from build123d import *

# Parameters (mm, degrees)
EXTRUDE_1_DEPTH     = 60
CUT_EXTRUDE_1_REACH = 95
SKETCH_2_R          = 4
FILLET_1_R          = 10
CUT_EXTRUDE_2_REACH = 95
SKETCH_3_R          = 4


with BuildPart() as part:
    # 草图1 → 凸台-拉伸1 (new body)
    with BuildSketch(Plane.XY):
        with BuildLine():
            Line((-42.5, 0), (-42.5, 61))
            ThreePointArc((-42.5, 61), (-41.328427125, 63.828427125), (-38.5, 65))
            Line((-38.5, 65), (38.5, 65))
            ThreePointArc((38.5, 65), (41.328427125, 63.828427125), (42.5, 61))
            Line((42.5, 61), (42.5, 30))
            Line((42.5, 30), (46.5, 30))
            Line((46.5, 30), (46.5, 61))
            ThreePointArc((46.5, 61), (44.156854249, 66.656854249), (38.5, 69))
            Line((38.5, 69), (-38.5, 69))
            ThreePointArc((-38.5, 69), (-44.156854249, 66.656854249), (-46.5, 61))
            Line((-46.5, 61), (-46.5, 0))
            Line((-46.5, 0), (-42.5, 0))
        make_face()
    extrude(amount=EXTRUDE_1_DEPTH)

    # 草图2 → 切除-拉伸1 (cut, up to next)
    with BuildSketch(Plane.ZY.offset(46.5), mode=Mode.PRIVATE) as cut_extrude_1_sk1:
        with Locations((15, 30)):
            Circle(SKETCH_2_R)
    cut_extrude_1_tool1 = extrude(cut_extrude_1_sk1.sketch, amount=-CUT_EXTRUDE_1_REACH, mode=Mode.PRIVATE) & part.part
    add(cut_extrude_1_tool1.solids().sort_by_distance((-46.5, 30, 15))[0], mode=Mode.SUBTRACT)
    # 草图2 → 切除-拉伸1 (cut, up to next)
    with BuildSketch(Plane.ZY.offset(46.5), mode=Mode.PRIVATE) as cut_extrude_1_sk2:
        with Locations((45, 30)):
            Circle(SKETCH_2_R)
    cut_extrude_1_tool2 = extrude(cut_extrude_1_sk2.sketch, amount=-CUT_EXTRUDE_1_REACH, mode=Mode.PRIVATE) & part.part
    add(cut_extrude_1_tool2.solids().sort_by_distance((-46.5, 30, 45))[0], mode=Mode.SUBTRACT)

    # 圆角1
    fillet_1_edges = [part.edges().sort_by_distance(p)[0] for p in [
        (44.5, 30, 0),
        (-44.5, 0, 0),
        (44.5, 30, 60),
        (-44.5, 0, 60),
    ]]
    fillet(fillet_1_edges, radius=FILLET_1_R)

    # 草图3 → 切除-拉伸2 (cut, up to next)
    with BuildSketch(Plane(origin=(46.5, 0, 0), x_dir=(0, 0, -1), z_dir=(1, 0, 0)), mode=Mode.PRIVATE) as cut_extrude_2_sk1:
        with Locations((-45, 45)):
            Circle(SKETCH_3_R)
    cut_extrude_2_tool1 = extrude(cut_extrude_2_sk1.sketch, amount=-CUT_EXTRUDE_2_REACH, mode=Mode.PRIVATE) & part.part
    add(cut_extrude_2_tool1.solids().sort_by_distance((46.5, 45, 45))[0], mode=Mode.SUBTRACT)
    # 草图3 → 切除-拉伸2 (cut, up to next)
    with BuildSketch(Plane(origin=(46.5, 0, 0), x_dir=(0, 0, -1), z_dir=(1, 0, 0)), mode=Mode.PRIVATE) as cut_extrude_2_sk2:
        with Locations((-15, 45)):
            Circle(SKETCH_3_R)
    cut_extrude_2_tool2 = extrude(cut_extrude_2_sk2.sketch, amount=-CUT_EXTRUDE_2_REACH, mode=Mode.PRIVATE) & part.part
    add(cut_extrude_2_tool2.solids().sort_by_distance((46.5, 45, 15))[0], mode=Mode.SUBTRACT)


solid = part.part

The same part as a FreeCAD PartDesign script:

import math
import FreeCAD as App
import Part
import Sketcher


def edges_at(feature, points):
    """Names of the edges that pass closest to the given points."""
    edges = feature.Shape.Edges
    near = lambda p: min(range(len(edges)), key=lambda i: edges[i].distToShape(Part.Vertex(*p))[0])
    return sorted({f"Edge{near(p) + 1}" for p in points})

doc = App.newDocument("Part")
body = doc.addObject("PartDesign::Body", "Body")

# Sketch on XY plane
sketch1 = body.newObject("Sketcher::SketchObject", "Sketch")
sketch1.AttachmentSupport = (doc.getObject("XY_Plane"), [""])
sketch1.MapMode = "FlatFace"
sketch1.addGeometry(Part.LineSegment(App.Vector(-42.5, 0, 0), App.Vector(-42.5, 61, 0)), False)
sketch1.addGeometry(Part.ArcOfCircle(Part.Circle(App.Vector(-38.5, 61, 0), App.Vector(0, 0, 1), 4), math.radians(90), math.radians(180)), False)
sketch1.addGeometry(Part.LineSegment(App.Vector(-38.5, 65, 0), App.Vector(38.5, 65, 0)), False)
sketch1.addGeometry(Part.ArcOfCircle(Part.Circle(App.Vector(38.5, 61, 0), App.Vector(0, 0, 1), 4), math.radians(0), math.radians(90)), False)
sketch1.addGeometry(Part.LineSegment(App.Vector(42.5, 61, 0), App.Vector(42.5, 30, 0)), False)
sketch1.addGeometry(Part.LineSegment(App.Vector(42.5, 30, 0), App.Vector(46.5, 30, 0)), False)
sketch1.addGeometry(Part.LineSegment(App.Vector(46.5, 30, 0), App.Vector(46.5, 61, 0)), False)
sketch1.addGeometry(Part.ArcOfCircle(Part.Circle(App.Vector(38.5, 61, 0), App.Vector(0, 0, 1), 8), math.radians(0), math.radians(90)), False)
sketch1.addGeometry(Part.LineSegment(App.Vector(38.5, 69, 0), App.Vector(-38.5, 69, 0)), False)
sketch1.addGeometry(Part.ArcOfCircle(Part.Circle(App.Vector(-38.5, 61, 0), App.Vector(0, 0, 1), 8), math.radians(90), math.radians(180)), False)
sketch1.addGeometry(Part.LineSegment(App.Vector(-46.5, 61, 0), App.Vector(-46.5, 0, 0)), False)
sketch1.addGeometry(Part.LineSegment(App.Vector(-46.5, 0, 0), App.Vector(-42.5, 0, 0)), False)
sketch1.addConstraint(Sketcher.Constraint("Tangent", 0, 2, 1, 2))
sketch1.addConstraint(Sketcher.Constraint("Tangent", 1, 1, 2, 1))
sketch1.addConstraint(Sketcher.Constraint("Tangent", 2, 2, 3, 2))
sketch1.addConstraint(Sketcher.Constraint("Tangent", 3, 1, 4, 1))
sketch1.addConstraint(Sketcher.Constraint("Coincident", 4, 2, 5, 1))
sketch1.addConstraint(Sketcher.Constraint("Coincident", 5, 2, 6, 1))
sketch1.addConstraint(Sketcher.Constraint("Tangent", 6, 2, 7, 1))
sketch1.addConstraint(Sketcher.Constraint("Tangent", 7, 2, 8, 1))
sketch1.addConstraint(Sketcher.Constraint("Tangent", 8, 2, 9, 1))
sketch1.addConstraint(Sketcher.Constraint("Tangent", 9, 2, 10, 1))
sketch1.addConstraint(Sketcher.Constraint("Coincident", 10, 2, 11, 1))
sketch1.addConstraint(Sketcher.Constraint("Coincident", 11, 2, 0, 1))
sketch1.addConstraint(Sketcher.Constraint("Vertical", 0))
sketch1.addConstraint(Sketcher.Constraint("Horizontal", 2))
sketch1.addConstraint(Sketcher.Constraint("Vertical", 4))
sketch1.addConstraint(Sketcher.Constraint("Horizontal", 5))
sketch1.addConstraint(Sketcher.Constraint("Vertical", 6))
sketch1.addConstraint(Sketcher.Constraint("Horizontal", 8))
sketch1.addConstraint(Sketcher.Constraint("Vertical", 10))
sketch1.addConstraint(Sketcher.Constraint("Horizontal", 11))
sketch1.addConstraint(Sketcher.Constraint("Coincident", 7, 3, 3, 3))
sketch1.addConstraint(Sketcher.Constraint("Coincident", 9, 3, 1, 3))
sketch1.addConstraint(Sketcher.Constraint("Equal", 1, 3))
sketch1.addConstraint(Sketcher.Constraint("PointOnObject", 10, 2, -1))
sketch1.addConstraint(Sketcher.Constraint("Radius", 1, 4.0))
sketch1.addConstraint(Sketcher.Constraint("Radius", 7, 8.0))
sketch1.addConstraint(Sketcher.Constraint("DistanceX", 2, 1, 2, 2, 77.0))
sketch1.addConstraint(Sketcher.Constraint("DistanceY", 0, 1, 0, 2, 61.0))
sketch1.addConstraint(Sketcher.Constraint("DistanceY", 4, 2, 4, 1, 31.0))
sketch1.addConstraint(Sketcher.Constraint("DistanceX", 1, 3, -1, 1, 38.5))
pad1 = body.newObject("PartDesign::Pad", "Pad")
pad1.Profile = sketch1
pad1.Length = 60

# Sketch on YZ plane
sketch2 = body.newObject("Sketcher::SketchObject", "Sketch001")
sketch2.AttachmentSupport = (doc.getObject("YZ_Plane"), [""])
sketch2.MapMode = "FlatFace"
sketch2.AttachmentOffset = App.Placement(App.Vector(0, 0, -46.5), App.Rotation())
sketch2.addGeometry(Part.Circle(App.Vector(30, 15, 0), App.Vector(0, 0, 1), 4), False)
sketch2.addConstraint(Sketcher.Constraint("Diameter", 0, 8.0))
sketch2.addConstraint(Sketcher.Constraint("DistanceX", -1, 1, 0, 3, 30.0))
sketch2.addConstraint(Sketcher.Constraint("DistanceY", -1, 1, 0, 3, 15.0))
pocket1 = body.newObject("PartDesign::Pocket", "Pocket")
pocket1.Profile = sketch2
pocket1.Type = "UpToFirst"
pocket1.Reversed = True

# Sketch on YZ plane
sketch3 = body.newObject("Sketcher::SketchObject", "Sketch002")
sketch3.AttachmentSupport = (doc.getObject("YZ_Plane"), [""])
sketch3.MapMode = "FlatFace"
sketch3.AttachmentOffset = App.Placement(App.Vector(0, 0, -46.5), App.Rotation())
sketch3.addGeometry(Part.Circle(App.Vector(30, 45, 0), App.Vector(0, 0, 1), 4), False)
sketch3.addConstraint(Sketcher.Constraint("Diameter", 0, 8.0))
sketch3.addConstraint(Sketcher.Constraint("DistanceX", -1, 1, 0, 3, 30.0))
sketch3.addConstraint(Sketcher.Constraint("DistanceY", -1, 1, 0, 3, 45.0))
pocket2 = body.newObject("PartDesign::Pocket", "Pocket001")
pocket2.Profile = sketch3
pocket2.Type = "UpToFirst"
pocket2.Reversed = True
doc.recompute()

fillet = body.newObject("PartDesign::Fillet", "Fillet")
fillet.Base = (pocket2, edges_at(pocket2, [
    (44.5, 30, 0),
    (-44.5, 0, 0),
    (44.5, 30, 60),
    (-44.5, 0, 60),
]))
fillet.Radius = 10

# Sketch on YZ plane
sketch4 = body.newObject("Sketcher::SketchObject", "Sketch003")
sketch4.AttachmentSupport = (doc.getObject("YZ_Plane"), [""])
sketch4.MapMode = "FlatFace"
sketch4.AttachmentOffset = App.Placement(App.Vector(0, 0, 46.5), App.Rotation())
sketch4.addGeometry(Part.Circle(App.Vector(45, 45, 0), App.Vector(0, 0, 1), 4), False)
sketch4.addConstraint(Sketcher.Constraint("Diameter", 0, 8.0))
sketch4.addConstraint(Sketcher.Constraint("DistanceX", -1, 1, 0, 3, 45.0))
sketch4.addConstraint(Sketcher.Constraint("DistanceY", -1, 1, 0, 3, 45.0))
pocket3 = body.newObject("PartDesign::Pocket", "Pocket002")
pocket3.Profile = sketch4
pocket3.Type = "UpToFirst"

# Sketch on YZ plane
sketch5 = body.newObject("Sketcher::SketchObject", "Sketch004")
sketch5.AttachmentSupport = (doc.getObject("YZ_Plane"), [""])
sketch5.MapMode = "FlatFace"
sketch5.AttachmentOffset = App.Placement(App.Vector(0, 0, 46.5), App.Rotation())
sketch5.addGeometry(Part.Circle(App.Vector(45, 15, 0), App.Vector(0, 0, 1), 4), False)
sketch5.addConstraint(Sketcher.Constraint("Diameter", 0, 8.0))
sketch5.addConstraint(Sketcher.Constraint("DistanceX", -1, 1, 0, 3, 45.0))
sketch5.addConstraint(Sketcher.Constraint("DistanceY", -1, 1, 0, 3, 15.0))
pocket4 = body.newObject("PartDesign::Pocket", "Pocket003")
pocket4.Profile = sketch5
pocket4.Type = "UpToFirst"

doc.recompute()
